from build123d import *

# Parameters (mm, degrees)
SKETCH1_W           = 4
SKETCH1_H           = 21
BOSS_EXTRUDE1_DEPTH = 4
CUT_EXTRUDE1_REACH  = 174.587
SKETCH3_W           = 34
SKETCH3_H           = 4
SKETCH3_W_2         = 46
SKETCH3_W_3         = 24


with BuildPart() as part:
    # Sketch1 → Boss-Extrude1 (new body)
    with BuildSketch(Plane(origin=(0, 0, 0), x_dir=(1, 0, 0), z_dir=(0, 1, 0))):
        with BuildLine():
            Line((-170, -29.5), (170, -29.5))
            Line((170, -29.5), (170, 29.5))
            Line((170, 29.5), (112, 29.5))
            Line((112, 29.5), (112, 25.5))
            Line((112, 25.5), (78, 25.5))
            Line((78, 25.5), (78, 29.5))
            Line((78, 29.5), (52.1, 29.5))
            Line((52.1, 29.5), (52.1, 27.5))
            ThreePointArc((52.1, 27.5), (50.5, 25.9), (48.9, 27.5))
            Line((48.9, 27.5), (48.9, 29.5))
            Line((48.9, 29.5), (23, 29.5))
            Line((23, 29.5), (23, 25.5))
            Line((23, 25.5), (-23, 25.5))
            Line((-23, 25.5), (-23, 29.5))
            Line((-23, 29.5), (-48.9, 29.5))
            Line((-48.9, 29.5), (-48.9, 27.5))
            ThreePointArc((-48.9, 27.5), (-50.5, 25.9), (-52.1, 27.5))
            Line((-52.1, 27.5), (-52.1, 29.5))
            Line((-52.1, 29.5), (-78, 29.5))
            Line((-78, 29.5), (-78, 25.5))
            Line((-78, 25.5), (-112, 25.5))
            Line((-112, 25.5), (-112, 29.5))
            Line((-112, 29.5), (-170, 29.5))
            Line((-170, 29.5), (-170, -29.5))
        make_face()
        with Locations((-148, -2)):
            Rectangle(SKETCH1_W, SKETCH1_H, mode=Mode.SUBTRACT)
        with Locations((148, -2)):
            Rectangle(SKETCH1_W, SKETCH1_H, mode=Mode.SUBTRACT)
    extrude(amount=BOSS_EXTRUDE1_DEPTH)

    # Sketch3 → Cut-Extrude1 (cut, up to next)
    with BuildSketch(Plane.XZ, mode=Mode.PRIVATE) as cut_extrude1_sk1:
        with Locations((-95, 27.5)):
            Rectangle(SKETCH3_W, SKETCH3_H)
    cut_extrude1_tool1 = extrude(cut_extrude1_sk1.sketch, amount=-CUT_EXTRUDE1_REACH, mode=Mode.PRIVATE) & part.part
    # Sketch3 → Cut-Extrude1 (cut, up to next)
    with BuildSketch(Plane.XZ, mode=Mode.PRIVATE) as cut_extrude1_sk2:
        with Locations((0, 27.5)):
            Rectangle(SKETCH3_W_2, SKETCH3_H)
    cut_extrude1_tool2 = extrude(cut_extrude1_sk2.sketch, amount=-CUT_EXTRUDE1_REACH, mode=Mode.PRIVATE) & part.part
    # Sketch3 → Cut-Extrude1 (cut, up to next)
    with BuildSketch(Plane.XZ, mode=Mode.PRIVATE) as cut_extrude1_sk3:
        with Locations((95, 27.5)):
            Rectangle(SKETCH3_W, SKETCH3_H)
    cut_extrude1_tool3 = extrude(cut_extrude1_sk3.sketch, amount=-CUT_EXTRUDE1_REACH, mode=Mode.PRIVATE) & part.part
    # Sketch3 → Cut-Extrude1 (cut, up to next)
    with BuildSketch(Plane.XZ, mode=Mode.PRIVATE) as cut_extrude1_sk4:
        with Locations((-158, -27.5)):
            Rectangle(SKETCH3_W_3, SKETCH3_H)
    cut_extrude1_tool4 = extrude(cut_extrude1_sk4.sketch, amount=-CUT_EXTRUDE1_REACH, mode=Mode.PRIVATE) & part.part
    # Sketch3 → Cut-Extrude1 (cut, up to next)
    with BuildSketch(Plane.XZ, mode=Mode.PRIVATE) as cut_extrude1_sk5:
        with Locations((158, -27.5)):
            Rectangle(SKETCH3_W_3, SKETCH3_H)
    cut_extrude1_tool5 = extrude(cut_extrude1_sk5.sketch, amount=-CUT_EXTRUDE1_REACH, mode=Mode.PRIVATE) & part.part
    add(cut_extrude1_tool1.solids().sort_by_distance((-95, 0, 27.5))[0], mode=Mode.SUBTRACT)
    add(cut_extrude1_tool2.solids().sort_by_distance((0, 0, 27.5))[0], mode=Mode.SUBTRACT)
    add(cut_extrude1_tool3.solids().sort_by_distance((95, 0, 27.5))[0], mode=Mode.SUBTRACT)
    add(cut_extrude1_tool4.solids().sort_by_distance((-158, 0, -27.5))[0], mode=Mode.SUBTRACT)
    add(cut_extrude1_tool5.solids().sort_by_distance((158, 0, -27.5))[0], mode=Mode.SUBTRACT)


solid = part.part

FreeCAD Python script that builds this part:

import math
import FreeCAD as App
import Part
import Sketcher

V = App.Vector
Q = App.Units.Quantity

doc = App.newDocument("Part")
body = doc.addObject("PartDesign::Body", "Body")

# Sketch on XZ plane
sketch1 = doc.addObject("Sketcher::SketchObject", "Sketch")
body.addObject(sketch1)
sketch1.AttachmentSupport = (doc.XZ_Plane, [""])
sketch1.MapMode = "FlatFace"
sketch1.addGeometry(Part.LineSegment(V(-170, 29.5, 0), V(170, 29.5, 0)), False)
sketch1.addGeometry(Part.LineSegment(V(170, 29.5, 0), V(170, -29.5, 0)), False)
sketch1.addGeometry(Part.LineSegment(V(170, -29.5, 0), V(112, -29.5, 0)), False)
sketch1.addGeometry(Part.LineSegment(V(112, -29.5, 0), V(112, -25.5, 0)), False)
sketch1.addGeometry(Part.LineSegment(V(112, -25.5, 0), V(78, -25.5, 0)), False)
sketch1.addGeometry(Part.LineSegment(V(78, -25.5, 0), V(78, -29.5, 0)), False)
sketch1.addGeometry(Part.LineSegment(V(78, -29.5, 0), V(52.1, -29.5, 0)), False)
sketch1.addGeometry(Part.LineSegment(V(52.1, -29.5, 0), V(52.1, -27.5, 0)), False)
sketch1.addGeometry(Part.ArcOfCircle(Part.Circle(V(50.5, -27.5, 0), V(0, 0, 1), 1.6), math.radians(0), math.radians(180)), False)
sketch1.addGeometry(Part.LineSegment(V(48.9, -27.5, 0), V(48.9, -29.5, 0)), False)
sketch1.addGeometry(Part.LineSegment(V(48.9, -29.5, 0), V(23, -29.5, 0)), False)
sketch1.addGeometry(Part.LineSegment(V(23, -29.5, 0), V(23, -25.5, 0)), False)
sketch1.addGeometry(Part.LineSegment(V(23, -25.5, 0), V(-23, -25.5, 0)), False)
sketch1.addGeometry(Part.LineSegment(V(-23, -25.5, 0), V(-23, -29.5, 0)), False)
sketch1.addGeometry(Part.LineSegment(V(-23, -29.5, 0), V(-48.9, -29.5, 0)), False)
sketch1.addGeometry(Part.LineSegment(V(-48.9, -29.5, 0), V(-48.9, -27.5, 0)), False)
sketch1.addGeometry(Part.ArcOfCircle(Part.Circle(V(-50.5, -27.5, 0), V(0, 0, 1), 1.6), math.radians(0), math.radians(180)), False)
sketch1.addGeometry(Part.LineSegment(V(-52.1, -27.5, 0), V(-52.1, -29.5, 0)), False)
sketch1.addGeometry(Part.LineSegment(V(-52.1, -29.5, 0), V(-78, -29.5, 0)), False)
sketch1.addGeometry(Part.LineSegment(V(-78, -29.5, 0), V(-78, -25.5, 0)), False)
sketch1.addGeometry(Part.LineSegment(V(-78, -25.5, 0), V(-112, -25.5, 0)), False)
sketch1.addGeometry(Part.LineSegment(V(-112, -25.5, 0), V(-112, -29.5, 0)), False)
sketch1.addGeometry(Part.LineSegment(V(-112, -29.5, 0), V(-170, -29.5, 0)), False)
sketch1.addGeometry(Part.LineSegment(V(-170, -29.5, 0), V(-170, 29.5, 0)), False)
sketch1.addGeometry(Part.LineSegment(V(-146, 12.5, 0), V(-150, 12.5, 0)), False)
sketch1.addGeometry(Part.LineSegment(V(-150, 12.5, 0), V(-150, -8.5, 0)), False)
sketch1.addGeometry(Part.LineSegment(V(-150, -8.5, 0), V(-146, -8.5, 0)), False)
sketch1.addGeometry(Part.LineSegment(V(-146, -8.5, 0), V(-146, 12.5, 0)), False)
sketch1.addGeometry(Part.LineSegment(V(150, 12.5, 0), V(146, 12.5, 0)), False)
sketch1.addGeometry(Part.LineSegment(V(146, 12.5, 0), V(146, -8.5, 0)), False)
sketch1.addGeometry(Part.LineSegment(V(146, -8.5, 0), V(150, -8.5, 0)), False)
sketch1.addGeometry(Part.LineSegment(V(150, -8.5, 0), V(150, 12.5, 0)), False)
sketch1.addConstraint(Sketcher.Constraint("Coincident", 0, 2, 1, 1))
sketch1.addConstraint(Sketcher.Constraint("Coincident", 1, 2, 2, 1))
sketch1.addConstraint(Sketcher.Constraint("Coincident", 2, 2, 3, 1))
sketch1.addConstraint(Sketcher.Constraint("Coincident", 3, 2, 4, 1))
sketch1.addConstraint(Sketcher.Constraint("Coincident", 4, 2, 5, 1))
sketch1.addConstraint(Sketcher.Constraint("Coincident", 5, 2, 6, 1))
sketch1.addConstraint(Sketcher.Constraint("Coincident", 6, 2, 7, 1))
sketch1.addConstraint(Sketcher.Constraint("Tangent", 7, 2, 8, 1))
sketch1.addConstraint(Sketcher.Constraint("Tangent", 8, 2, 9, 1))
sketch1.addConstraint(Sketcher.Constraint("Coincident", 9, 2, 10, 1))
sketch1.addConstraint(Sketcher.Constraint("Coincident", 10, 2, 11, 1))
sketch1.addConstraint(Sketcher.Constraint("Coincident", 11, 2, 12, 1))
sketch1.addConstraint(Sketcher.Constraint("Coincident", 12, 2, 13, 1))
sketch1.addConstraint(Sketcher.Constraint("Coincident", 13, 2, 14, 1))
sketch1.addConstraint(Sketcher.Constraint("Coincident", 14, 2, 15, 1))
sketch1.addConstraint(Sketcher.Constraint("Tangent", 15, 2, 16, 1))
sketch1.addConstraint(Sketcher.Constraint("Tangent", 16, 2, 17, 1))
sketch1.addConstraint(Sketcher.Constraint("Coincident", 17, 2, 18, 1))
sketch1.addConstraint(Sketcher.Constraint("Coincident", 18, 2, 19, 1))
sketch1.addConstraint(Sketcher.Constraint("Coincident", 19, 2, 20, 1))
sketch1.addConstraint(Sketcher.Constraint("Coincident", 20, 2, 21, 1))
sketch1.addConstraint(Sketcher.Constraint("Coincident", 21, 2, 22, 1))
sketch1.addConstraint(Sketcher.Constraint("Coincident", 22, 2, 23, 1))
sketch1.addConstraint(Sketcher.Constraint("Coincident", 23, 2, 0, 1))
sketch1.addConstraint(Sketcher.Constraint("Coincident", 24, 2, 25, 1))
sketch1.addConstraint(Sketcher.Constraint("Coincident", 25, 2, 26, 1))
sketch1.addConstraint(Sketcher.Constraint("Coincident", 26, 2, 27, 1))
sketch1.addConstraint(Sketcher.Constraint("Coincident", 27, 2, 24, 1))
sketch1.addConstraint(Sketcher.Constraint("Coincident", 28, 2, 29, 1))
sketch1.addConstraint(Sketcher.Constraint("Coincident", 29, 2, 30, 1))
sketch1.addConstraint(Sketcher.Constraint("Coincident", 30, 2, 31, 1))
sketch1.addConstraint(Sketcher.Constraint("Coincident", 31, 2, 28, 1))
sketch1.addConstraint(Sketcher.Constraint("Horizontal", 0))
sketch1.addConstraint(Sketcher.Constraint("Vertical", 1))
sketch1.addConstraint(Sketcher.Constraint("Horizontal", 2))
sketch1.addConstraint(Sketcher.Constraint("Vertical", 3))
sketch1.addConstraint(Sketcher.Constraint("Horizontal", 4))
sketch1.addConstraint(Sketcher.Constraint("Vertical", 5))
sketch1.addConstraint(Sketcher.Constraint("Horizontal", 6))
sketch1.addConstraint(Sketcher.Constraint("Vertical", 7))
sketch1.addConstraint(Sketcher.Constraint("Vertical", 9))
sketch1.addConstraint(Sketcher.Constraint("Horizontal", 10))
sketch1.addConstraint(Sketcher.Constraint("Vertical", 11))
sketch1.addConstraint(Sketcher.Constraint("Horizontal", 12))
sketch1.addConstraint(Sketcher.Constraint("Vertical", 13))
sketch1.addConstraint(Sketcher.Constraint("Horizontal", 14))
sketch1.addConstraint(Sketcher.Constraint("Vertical", 15))
sketch1.addConstraint(Sketcher.Constraint("Vertical", 17))
sketch1.addConstraint(Sketcher.Constraint("Horizontal", 18))
sketch1.addConstraint(Sketcher.Constraint("Vertical", 19))
sketch1.addConstraint(Sketcher.Constraint("Horizontal", 20))
sketch1.addConstraint(Sketcher.Constraint("Vertical", 21))
sketch1.addConstraint(Sketcher.Constraint("Horizontal", 22))
sketch1.addConstraint(Sketcher.Constraint("Vertical", 23))
sketch1.addConstraint(Sketcher.Constraint("Horizontal", 24))
sketch1.addConstraint(Sketcher.Constraint("Vertical", 25))
sketch1.addConstraint(Sketcher.Constraint("Horizontal", 26))
sketch1.addConstraint(Sketcher.Constraint("Vertical", 27))
sketch1.addConstraint(Sketcher.Constraint("Horizontal", 28))
sketch1.addConstraint(Sketcher.Constraint("Vertical", 29))
sketch1.addConstraint(Sketcher.Constraint("Horizontal", 30))
sketch1.addConstraint(Sketcher.Constraint("Vertical", 31))
sketch1.addConstraint(Sketcher.Constraint("Equal", 8, 16))
sketch1.addConstraint(Sketcher.Constraint("Symmetric", 0, 2, 22, 2, -1, 1))
sketch1.addConstraint(Sketcher.Constraint("Symmetric", 8, 3, 16, 3, -2))
sketch1.addConstraint(Sketcher.Constraint("Symmetric", 10, 2, 13, 2, -2))
sketch1.addConstraint(Sketcher.Constraint("Symmetric", 5, 2, 18, 2, -2))
sketch1.addConstraint(Sketcher.Constraint("Symmetric", 3, 2, 20, 2, -2))
sketch1.addConstraint(Sketcher.Constraint("Symmetric", 27, 2, 28, 2, -2))
sketch1.addConstraint(Sketcher.Constraint("Symmetric", 25, 2, 30, 2, -2))
sketch1.addConstraint(Sketcher.Constraint("Horizontal", 2, 2, 5, 2))
sketch1.addConstraint(Sketcher.Constraint("Horizontal", 6, 2, 9, 2))
sketch1.addConstraint(Sketcher.Constraint("Horizontal", 4, 2, 11, 2))
sketch1.addConstraint(Sketcher.Constraint("Horizontal", 18, 2, 21, 2))
sketch1.addConstraint(Sketcher.Constraint("Equal", 6, 10))
sketch1.addConstraint(Sketcher.Constraint("Equal", 30, 3))
sketch1.addConstraint(Sketcher.Constraint("Radius", 8, Q("1.6 mm")))
sketch1.addConstraint(Sketcher.Constraint("DistanceX", 0, 1, 0, 2, Q("340 mm")))
sketch1.addConstraint(Sketcher.Constraint("DistanceX", 2, 2, 2, 1, Q("58 mm")))
sketch1.addConstraint(Sketcher.Constraint("DistanceX", 4, 2, 4, 1, Q("34 mm")))
sketch1.addConstraint(Sketcher.Constraint("DistanceX", 12, 2, 12, 1, Q("46 mm")))
sketch1.addConstraint(Sketcher.Constraint("DistanceX", 24, 2, 24, 1, Q("4 mm")))
sketch1.addConstraint(Sketcher.Constraint("DistanceY", 1, 2, 1, 1, Q("59 mm")))
sketch1.addConstraint(Sketcher.Constraint("DistanceY", 7, 1, 7, 2, Q("2 mm")))
sketch1.addConstraint(Sketcher.Constraint("DistanceY", 25, 2, 25, 1, Q("21 mm")))
sketch1.addConstraint(Sketcher.Constraint("DistanceX", 24, 2, -1, 1, Q("150 mm")))
sketch1.addConstraint(Sketcher.Constraint("DistanceY", 24, 2, 23, 2, Q("17 mm")))
pad1 = doc.addObject("PartDesign::Pad", "Pad")
body.addObject(pad1)
pad1.Profile = sketch1
pad1.Length = 4
pad1.Reversed = True

# Sketch on XZ plane
sketch2 = doc.addObject("Sketcher::SketchObject", "Sketch001")
body.addObject(sketch2)
sketch2.AttachmentSupport = (doc.XZ_Plane, [""])
sketch2.MapMode = "FlatFace"
sketch2.addGeometry(Part.LineSegment(V(-112, 29.5, 0), V(-112, 25.5, 0)), False)
sketch2.addGeometry(Part.LineSegment(V(-112, 25.5, 0), V(-78, 25.5, 0)), False)
sketch2.addGeometry(Part.LineSegment(V(-78, 25.5, 0), V(-78, 29.5, 0)), False)
sketch2.addGeometry(Part.LineSegment(V(-78, 29.5, 0), V(-112, 29.5, 0)), False)
sketch2.addConstraint(Sketcher.Constraint("Coincident", 0, 2, 1, 1))
sketch2.addConstraint(Sketcher.Constraint("Coincident", 1, 2, 2, 1))
sketch2.addConstraint(Sketcher.Constraint("Coincident", 2, 2, 3, 1))
sketch2.addConstraint(Sketcher.Constraint("Coincident", 3, 2, 0, 1))
sketch2.addConstraint(Sketcher.Constraint("Vertical", 0))
sketch2.addConstraint(Sketcher.Constraint("Horizontal", 1))
sketch2.addConstraint(Sketcher.Constraint("Vertical", 2))
sketch2.addConstraint(Sketcher.Constraint("Horizontal", 3))
sketch2.addConstraint(Sketcher.Constraint("DistanceX", 1, 1, 1, 2, Q("34 mm")))
sketch2.addConstraint(Sketcher.Constraint("DistanceY", 0, 2, 0, 1, Q("4 mm")))
sketch2.addConstraint(Sketcher.Constraint("DistanceX", 0, 2, -1, 1, Q("112 mm")))
sketch2.addConstraint(Sketcher.Constraint("DistanceY", -1, 1, 0, 2, Q("25.5 mm")))
pocket1 = doc.addObject("PartDesign::Pocket", "Pocket")
body.addObject(pocket1)
pocket1.Profile = sketch2
pocket1.Type = "UpToFirst"

# Sketch on XZ plane
sketch3 = doc.addObject("Sketcher::SketchObject", "Sketch002")
body.addObject(sketch3)
sketch3.AttachmentSupport = (doc.XZ_Plane, [""])
sketch3.MapMode = "FlatFace"
sketch3.addGeometry(Part.LineSegment(V(-23, 29.5, 0), V(-23, 25.5, 0)), False)
sketch3.addGeometry(Part.LineSegment(V(-23, 25.5, 0), V(23, 25.5, 0)), False)
sketch3.addGeometry(Part.LineSegment(V(23, 25.5, 0), V(23, 29.5, 0)), False)
sketch3.addGeometry(Part.LineSegment(V(23, 29.5, 0), V(-23, 29.5, 0)), False)
sketch3.addConstraint(Sketcher.Constraint("Coincident", 0, 2, 1, 1))
sketch3.addConstraint(Sketcher.Constraint("Coincident", 1, 2, 2, 1))
sketch3.addConstraint(Sketcher.Constraint("Coincident", 2, 2, 3, 1))
sketch3.addConstraint(Sketcher.Constraint("Coincident", 3, 2, 0, 1))
sketch3.addConstraint(Sketcher.Constraint("Vertical", 0))
sketch3.addConstraint(Sketcher.Constraint("Horizontal", 1))
sketch3.addConstraint(Sketcher.Constraint("Vertical", 2))
sketch3.addConstraint(Sketcher.Constraint("Horizontal", 3))
sketch3.addConstraint(Sketcher.Constraint("DistanceX", 1, 1, 1, 2, Q("46 mm")))
sketch3.addConstraint(Sketcher.Constraint("DistanceY", 0, 2, 0, 1, Q("4 mm")))
sketch3.addConstraint(Sketcher.Constraint("DistanceX", 0, 2, -1, 1, Q("23 mm")))
sketch3.addConstraint(Sketcher.Constraint("DistanceY", -1, 1, 0, 2, Q("25.5 mm")))
pocket2 = doc.addObject("PartDesign::Pocket", "Pocket001")
body.addObject(pocket2)
pocket2.Profile = sketch3
pocket2.Type = "UpToFirst"

# Sketch on XZ plane
sketch4 = doc.addObject("Sketcher::SketchObject", "Sketch003")
body.addObject(sketch4)
sketch4.AttachmentSupport = (doc.XZ_Plane, [""])
sketch4.MapMode = "FlatFace"
sketch4.addGeometry(Part.LineSegment(V(78, 29.5, 0), V(78, 25.5, 0)), False)
sketch4.addGeometry(Part.LineSegment(V(78, 25.5, 0), V(112, 25.5, 0)), False)
sketch4.addGeometry(Part.LineSegment(V(112, 25.5, 0), V(112, 29.5, 0)), False)
sketch4.addGeometry(Part.LineSegment(V(112, 29.5, 0), V(78, 29.5, 0)), False)
sketch4.addConstraint(Sketcher.Constraint("Coincident", 0, 2, 1, 1))
sketch4.addConstraint(Sketcher.Constraint("Coincident", 1, 2, 2, 1))
sketch4.addConstraint(Sketcher.Constraint("Coincident", 2, 2, 3, 1))
sketch4.addConstraint(Sketcher.Constraint("Coincident", 3, 2, 0, 1))
sketch4.addConstraint(Sketcher.Constraint("Vertical", 0))
sketch4.addConstraint(Sketcher.Constraint("Horizontal", 1))
sketch4.addConstraint(Sketcher.Constraint("Vertical", 2))
sketch4.addConstraint(Sketcher.Constraint("Horizontal", 3))
sketch4.addConstraint(Sketcher.Constraint("DistanceX", 1, 1, 1, 2, Q("34 mm")))
sketch4.addConstraint(Sketcher.Constraint("DistanceY", 0, 2, 0, 1, Q("4 mm")))
sketch4.addConstraint(Sketcher.Constraint("DistanceX", -1, 1, 0, 2, Q("78 mm")))
sketch4.addConstraint(Sketcher.Constraint("DistanceY", -1, 1, 0, 2, Q("25.5 mm")))
pocket3 = doc.addObject("PartDesign::Pocket", "Pocket002")
body.addObject(pocket3)
pocket3.Profile = sketch4
pocket3.Type = "UpToFirst"

# Sketch on XZ plane
sketch5 = doc.addObject("Sketcher::SketchObject", "Sketch004")
body.addObject(sketch5)
sketch5.AttachmentSupport = (doc.XZ_Plane, [""])
sketch5.MapMode = "FlatFace"
sketch5.addGeometry(Part.LineSegment(V(-170, -25.5, 0), V(-170, -29.5, 0)), False)
sketch5.addGeometry(Part.LineSegment(V(-170, -29.5, 0), V(-146, -29.5, 0)), False)
sketch5.addGeometry(Part.LineSegment(V(-146, -29.5, 0), V(-146, -25.5, 0)), False)
sketch5.addGeometry(Part.LineSegment(V(-146, -25.5, 0), V(-170, -25.5, 0)), False)
sketch5.addConstraint(Sketcher.Constraint("Coincident", 0, 2, 1, 1))
sketch5.addConstraint(Sketcher.Constraint("Coincident", 1, 2, 2, 1))
sketch5.addConstraint(Sketcher.Constraint("Coincident", 2, 2, 3, 1))
sketch5.addConstraint(Sketcher.Constraint("Coincident", 3, 2, 0, 1))
sketch5.addConstraint(Sketcher.Constraint("Vertical", 0))
sketch5.addConstraint(Sketcher.Constraint("Horizontal", 1))
sketch5.addConstraint(Sketcher.Constraint("Vertical", 2))
sketch5.addConstraint(Sketcher.Constraint("Horizontal", 3))
sketch5.addConstraint(Sketcher.Constraint("DistanceX", 1, 1, 1, 2, Q("24 mm")))
sketch5.addConstraint(Sketcher.Constraint("DistanceY", 0, 2, 0, 1, Q("4 mm")))
sketch5.addConstraint(Sketcher.Constraint("DistanceX", 0, 2, -1, 1, Q("170 mm")))
sketch5.addConstraint(Sketcher.Constraint("DistanceY", 0, 2, -1, 1, Q("29.5 mm")))
pocket4 = doc.addObject("PartDesign::Pocket", "Pocket003")
body.addObject(pocket4)
pocket4.Profile = sketch5
pocket4.Type = "UpToFirst"

# Sketch on XZ plane
sketch6 = doc.addObject("Sketcher::SketchObject", "Sketch005")
body.addObject(sketch6)
sketch6.AttachmentSupport = (doc.XZ_Plane, [""])
sketch6.MapMode = "FlatFace"
sketch6.addGeometry(Part.LineSegment(V(146, -25.5, 0), V(146, -29.5, 0)), False)
sketch6.addGeometry(Part.LineSegment(V(146, -29.5, 0), V(170, -29.5, 0)), False)
sketch6.addGeometry(Part.LineSegment(V(170, -29.5, 0), V(170, -25.5, 0)), False)
sketch6.addGeometry(Part.LineSegment(V(170, -25.5, 0), V(146, -25.5, 0)), False)
sketch6.addConstraint(Sketcher.Constraint("Coincident", 0, 2, 1, 1))
sketch6.addConstraint(Sketcher.Constraint("Coincident", 1, 2, 2, 1))
sketch6.addConstraint(Sketcher.Constraint("Coincident", 2, 2, 3, 1))
sketch6.addConstraint(Sketcher.Constraint("Coincident", 3, 2, 0, 1))
sketch6.addConstraint(Sketcher.Constraint("Vertical", 0))
sketch6.addConstraint(Sketcher.Constraint("Horizontal", 1))
sketch6.addConstraint(Sketcher.Constraint("Vertical", 2))
sketch6.addConstraint(Sketcher.Constraint("Horizontal", 3))
sketch6.addConstraint(Sketcher.Constraint("DistanceX", 1, 1, 1, 2, Q("24 mm")))
sketch6.addConstraint(Sketcher.Constraint("DistanceY", 0, 2, 0, 1, Q("4 mm")))
sketch6.addConstraint(Sketcher.Constraint("DistanceX", -1, 1, 0, 2, Q("146 mm")))
sketch6.addConstraint(Sketcher.Constraint("DistanceY", 0, 2, -1, 1, Q("29.5 mm")))
pocket5 = doc.addObject("PartDesign::Pocket", "Pocket004")
body.addObject(pocket5)
pocket5.Profile = sketch6
pocket5.Type = "UpToFirst"

doc.recompute()
